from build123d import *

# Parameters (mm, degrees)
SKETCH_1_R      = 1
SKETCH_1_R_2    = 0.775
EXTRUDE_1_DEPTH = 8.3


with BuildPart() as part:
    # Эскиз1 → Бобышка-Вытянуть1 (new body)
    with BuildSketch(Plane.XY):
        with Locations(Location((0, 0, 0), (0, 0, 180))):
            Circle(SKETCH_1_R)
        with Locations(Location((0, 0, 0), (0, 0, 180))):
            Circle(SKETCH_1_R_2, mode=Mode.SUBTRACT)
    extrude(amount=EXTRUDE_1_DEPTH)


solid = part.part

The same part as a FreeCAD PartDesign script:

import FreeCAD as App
import Part
import Sketcher
from FreeCAD import Vector
Q = App.Units.Quantity

doc = App.newDocument("Part")
params = doc.addObject("Spreadsheet::Sheet", "Params")
for row, (alias, value) in enumerate([
    ("sketch1_diameter", "2 mm"),
    ("sketch1_diameter2", "1.55 mm"),
    ("pad1_length", "8.3 mm"),
], start=1):
    params.set(f"A{row}", alias)
    params.set(f"B{row}", "=" + value)
    params.setAlias(f"B{row}", alias)

body = doc.addObject("PartDesign::Body", "Body")

# Sketch on XY plane
sketch1 = body.newObject("Sketcher::SketchObject", "Sketch")
sketch1.AttachmentSupport = (doc.getObject("XY_Plane"), [""])
sketch1.MapMode = "FlatFace"
sketch1.addGeometry([
    Part.Circle(Vector(0, 0, 0), Vector(0, 0, 1), 1),
    Part.Circle(Vector(0, 0, 0), Vector(0, 0, 1), 0.8),
], False)
sketch1.addConstraint([
    Sketcher.Constraint("Coincident", 0, 3, -1, 1),
    Sketcher.Constraint("Coincident", 1, 3, -1, 1),
    Sketcher.Constraint("Diameter", 0, Q("2 mm")),
    Sketcher.Constraint("Diameter", 1, Q("1.55 mm")),
])
sketch1.setExpression("Constraints[2]", "Params.sketch1_diameter")
sketch1.setExpression("Constraints[3]", "Params.sketch1_diameter2")
pad1 = body.newObject("PartDesign::Pad", "Pad")
pad1.Profile = sketch1
pad1.setExpression("Length", "Params.pad1_length")

doc.recompute()
